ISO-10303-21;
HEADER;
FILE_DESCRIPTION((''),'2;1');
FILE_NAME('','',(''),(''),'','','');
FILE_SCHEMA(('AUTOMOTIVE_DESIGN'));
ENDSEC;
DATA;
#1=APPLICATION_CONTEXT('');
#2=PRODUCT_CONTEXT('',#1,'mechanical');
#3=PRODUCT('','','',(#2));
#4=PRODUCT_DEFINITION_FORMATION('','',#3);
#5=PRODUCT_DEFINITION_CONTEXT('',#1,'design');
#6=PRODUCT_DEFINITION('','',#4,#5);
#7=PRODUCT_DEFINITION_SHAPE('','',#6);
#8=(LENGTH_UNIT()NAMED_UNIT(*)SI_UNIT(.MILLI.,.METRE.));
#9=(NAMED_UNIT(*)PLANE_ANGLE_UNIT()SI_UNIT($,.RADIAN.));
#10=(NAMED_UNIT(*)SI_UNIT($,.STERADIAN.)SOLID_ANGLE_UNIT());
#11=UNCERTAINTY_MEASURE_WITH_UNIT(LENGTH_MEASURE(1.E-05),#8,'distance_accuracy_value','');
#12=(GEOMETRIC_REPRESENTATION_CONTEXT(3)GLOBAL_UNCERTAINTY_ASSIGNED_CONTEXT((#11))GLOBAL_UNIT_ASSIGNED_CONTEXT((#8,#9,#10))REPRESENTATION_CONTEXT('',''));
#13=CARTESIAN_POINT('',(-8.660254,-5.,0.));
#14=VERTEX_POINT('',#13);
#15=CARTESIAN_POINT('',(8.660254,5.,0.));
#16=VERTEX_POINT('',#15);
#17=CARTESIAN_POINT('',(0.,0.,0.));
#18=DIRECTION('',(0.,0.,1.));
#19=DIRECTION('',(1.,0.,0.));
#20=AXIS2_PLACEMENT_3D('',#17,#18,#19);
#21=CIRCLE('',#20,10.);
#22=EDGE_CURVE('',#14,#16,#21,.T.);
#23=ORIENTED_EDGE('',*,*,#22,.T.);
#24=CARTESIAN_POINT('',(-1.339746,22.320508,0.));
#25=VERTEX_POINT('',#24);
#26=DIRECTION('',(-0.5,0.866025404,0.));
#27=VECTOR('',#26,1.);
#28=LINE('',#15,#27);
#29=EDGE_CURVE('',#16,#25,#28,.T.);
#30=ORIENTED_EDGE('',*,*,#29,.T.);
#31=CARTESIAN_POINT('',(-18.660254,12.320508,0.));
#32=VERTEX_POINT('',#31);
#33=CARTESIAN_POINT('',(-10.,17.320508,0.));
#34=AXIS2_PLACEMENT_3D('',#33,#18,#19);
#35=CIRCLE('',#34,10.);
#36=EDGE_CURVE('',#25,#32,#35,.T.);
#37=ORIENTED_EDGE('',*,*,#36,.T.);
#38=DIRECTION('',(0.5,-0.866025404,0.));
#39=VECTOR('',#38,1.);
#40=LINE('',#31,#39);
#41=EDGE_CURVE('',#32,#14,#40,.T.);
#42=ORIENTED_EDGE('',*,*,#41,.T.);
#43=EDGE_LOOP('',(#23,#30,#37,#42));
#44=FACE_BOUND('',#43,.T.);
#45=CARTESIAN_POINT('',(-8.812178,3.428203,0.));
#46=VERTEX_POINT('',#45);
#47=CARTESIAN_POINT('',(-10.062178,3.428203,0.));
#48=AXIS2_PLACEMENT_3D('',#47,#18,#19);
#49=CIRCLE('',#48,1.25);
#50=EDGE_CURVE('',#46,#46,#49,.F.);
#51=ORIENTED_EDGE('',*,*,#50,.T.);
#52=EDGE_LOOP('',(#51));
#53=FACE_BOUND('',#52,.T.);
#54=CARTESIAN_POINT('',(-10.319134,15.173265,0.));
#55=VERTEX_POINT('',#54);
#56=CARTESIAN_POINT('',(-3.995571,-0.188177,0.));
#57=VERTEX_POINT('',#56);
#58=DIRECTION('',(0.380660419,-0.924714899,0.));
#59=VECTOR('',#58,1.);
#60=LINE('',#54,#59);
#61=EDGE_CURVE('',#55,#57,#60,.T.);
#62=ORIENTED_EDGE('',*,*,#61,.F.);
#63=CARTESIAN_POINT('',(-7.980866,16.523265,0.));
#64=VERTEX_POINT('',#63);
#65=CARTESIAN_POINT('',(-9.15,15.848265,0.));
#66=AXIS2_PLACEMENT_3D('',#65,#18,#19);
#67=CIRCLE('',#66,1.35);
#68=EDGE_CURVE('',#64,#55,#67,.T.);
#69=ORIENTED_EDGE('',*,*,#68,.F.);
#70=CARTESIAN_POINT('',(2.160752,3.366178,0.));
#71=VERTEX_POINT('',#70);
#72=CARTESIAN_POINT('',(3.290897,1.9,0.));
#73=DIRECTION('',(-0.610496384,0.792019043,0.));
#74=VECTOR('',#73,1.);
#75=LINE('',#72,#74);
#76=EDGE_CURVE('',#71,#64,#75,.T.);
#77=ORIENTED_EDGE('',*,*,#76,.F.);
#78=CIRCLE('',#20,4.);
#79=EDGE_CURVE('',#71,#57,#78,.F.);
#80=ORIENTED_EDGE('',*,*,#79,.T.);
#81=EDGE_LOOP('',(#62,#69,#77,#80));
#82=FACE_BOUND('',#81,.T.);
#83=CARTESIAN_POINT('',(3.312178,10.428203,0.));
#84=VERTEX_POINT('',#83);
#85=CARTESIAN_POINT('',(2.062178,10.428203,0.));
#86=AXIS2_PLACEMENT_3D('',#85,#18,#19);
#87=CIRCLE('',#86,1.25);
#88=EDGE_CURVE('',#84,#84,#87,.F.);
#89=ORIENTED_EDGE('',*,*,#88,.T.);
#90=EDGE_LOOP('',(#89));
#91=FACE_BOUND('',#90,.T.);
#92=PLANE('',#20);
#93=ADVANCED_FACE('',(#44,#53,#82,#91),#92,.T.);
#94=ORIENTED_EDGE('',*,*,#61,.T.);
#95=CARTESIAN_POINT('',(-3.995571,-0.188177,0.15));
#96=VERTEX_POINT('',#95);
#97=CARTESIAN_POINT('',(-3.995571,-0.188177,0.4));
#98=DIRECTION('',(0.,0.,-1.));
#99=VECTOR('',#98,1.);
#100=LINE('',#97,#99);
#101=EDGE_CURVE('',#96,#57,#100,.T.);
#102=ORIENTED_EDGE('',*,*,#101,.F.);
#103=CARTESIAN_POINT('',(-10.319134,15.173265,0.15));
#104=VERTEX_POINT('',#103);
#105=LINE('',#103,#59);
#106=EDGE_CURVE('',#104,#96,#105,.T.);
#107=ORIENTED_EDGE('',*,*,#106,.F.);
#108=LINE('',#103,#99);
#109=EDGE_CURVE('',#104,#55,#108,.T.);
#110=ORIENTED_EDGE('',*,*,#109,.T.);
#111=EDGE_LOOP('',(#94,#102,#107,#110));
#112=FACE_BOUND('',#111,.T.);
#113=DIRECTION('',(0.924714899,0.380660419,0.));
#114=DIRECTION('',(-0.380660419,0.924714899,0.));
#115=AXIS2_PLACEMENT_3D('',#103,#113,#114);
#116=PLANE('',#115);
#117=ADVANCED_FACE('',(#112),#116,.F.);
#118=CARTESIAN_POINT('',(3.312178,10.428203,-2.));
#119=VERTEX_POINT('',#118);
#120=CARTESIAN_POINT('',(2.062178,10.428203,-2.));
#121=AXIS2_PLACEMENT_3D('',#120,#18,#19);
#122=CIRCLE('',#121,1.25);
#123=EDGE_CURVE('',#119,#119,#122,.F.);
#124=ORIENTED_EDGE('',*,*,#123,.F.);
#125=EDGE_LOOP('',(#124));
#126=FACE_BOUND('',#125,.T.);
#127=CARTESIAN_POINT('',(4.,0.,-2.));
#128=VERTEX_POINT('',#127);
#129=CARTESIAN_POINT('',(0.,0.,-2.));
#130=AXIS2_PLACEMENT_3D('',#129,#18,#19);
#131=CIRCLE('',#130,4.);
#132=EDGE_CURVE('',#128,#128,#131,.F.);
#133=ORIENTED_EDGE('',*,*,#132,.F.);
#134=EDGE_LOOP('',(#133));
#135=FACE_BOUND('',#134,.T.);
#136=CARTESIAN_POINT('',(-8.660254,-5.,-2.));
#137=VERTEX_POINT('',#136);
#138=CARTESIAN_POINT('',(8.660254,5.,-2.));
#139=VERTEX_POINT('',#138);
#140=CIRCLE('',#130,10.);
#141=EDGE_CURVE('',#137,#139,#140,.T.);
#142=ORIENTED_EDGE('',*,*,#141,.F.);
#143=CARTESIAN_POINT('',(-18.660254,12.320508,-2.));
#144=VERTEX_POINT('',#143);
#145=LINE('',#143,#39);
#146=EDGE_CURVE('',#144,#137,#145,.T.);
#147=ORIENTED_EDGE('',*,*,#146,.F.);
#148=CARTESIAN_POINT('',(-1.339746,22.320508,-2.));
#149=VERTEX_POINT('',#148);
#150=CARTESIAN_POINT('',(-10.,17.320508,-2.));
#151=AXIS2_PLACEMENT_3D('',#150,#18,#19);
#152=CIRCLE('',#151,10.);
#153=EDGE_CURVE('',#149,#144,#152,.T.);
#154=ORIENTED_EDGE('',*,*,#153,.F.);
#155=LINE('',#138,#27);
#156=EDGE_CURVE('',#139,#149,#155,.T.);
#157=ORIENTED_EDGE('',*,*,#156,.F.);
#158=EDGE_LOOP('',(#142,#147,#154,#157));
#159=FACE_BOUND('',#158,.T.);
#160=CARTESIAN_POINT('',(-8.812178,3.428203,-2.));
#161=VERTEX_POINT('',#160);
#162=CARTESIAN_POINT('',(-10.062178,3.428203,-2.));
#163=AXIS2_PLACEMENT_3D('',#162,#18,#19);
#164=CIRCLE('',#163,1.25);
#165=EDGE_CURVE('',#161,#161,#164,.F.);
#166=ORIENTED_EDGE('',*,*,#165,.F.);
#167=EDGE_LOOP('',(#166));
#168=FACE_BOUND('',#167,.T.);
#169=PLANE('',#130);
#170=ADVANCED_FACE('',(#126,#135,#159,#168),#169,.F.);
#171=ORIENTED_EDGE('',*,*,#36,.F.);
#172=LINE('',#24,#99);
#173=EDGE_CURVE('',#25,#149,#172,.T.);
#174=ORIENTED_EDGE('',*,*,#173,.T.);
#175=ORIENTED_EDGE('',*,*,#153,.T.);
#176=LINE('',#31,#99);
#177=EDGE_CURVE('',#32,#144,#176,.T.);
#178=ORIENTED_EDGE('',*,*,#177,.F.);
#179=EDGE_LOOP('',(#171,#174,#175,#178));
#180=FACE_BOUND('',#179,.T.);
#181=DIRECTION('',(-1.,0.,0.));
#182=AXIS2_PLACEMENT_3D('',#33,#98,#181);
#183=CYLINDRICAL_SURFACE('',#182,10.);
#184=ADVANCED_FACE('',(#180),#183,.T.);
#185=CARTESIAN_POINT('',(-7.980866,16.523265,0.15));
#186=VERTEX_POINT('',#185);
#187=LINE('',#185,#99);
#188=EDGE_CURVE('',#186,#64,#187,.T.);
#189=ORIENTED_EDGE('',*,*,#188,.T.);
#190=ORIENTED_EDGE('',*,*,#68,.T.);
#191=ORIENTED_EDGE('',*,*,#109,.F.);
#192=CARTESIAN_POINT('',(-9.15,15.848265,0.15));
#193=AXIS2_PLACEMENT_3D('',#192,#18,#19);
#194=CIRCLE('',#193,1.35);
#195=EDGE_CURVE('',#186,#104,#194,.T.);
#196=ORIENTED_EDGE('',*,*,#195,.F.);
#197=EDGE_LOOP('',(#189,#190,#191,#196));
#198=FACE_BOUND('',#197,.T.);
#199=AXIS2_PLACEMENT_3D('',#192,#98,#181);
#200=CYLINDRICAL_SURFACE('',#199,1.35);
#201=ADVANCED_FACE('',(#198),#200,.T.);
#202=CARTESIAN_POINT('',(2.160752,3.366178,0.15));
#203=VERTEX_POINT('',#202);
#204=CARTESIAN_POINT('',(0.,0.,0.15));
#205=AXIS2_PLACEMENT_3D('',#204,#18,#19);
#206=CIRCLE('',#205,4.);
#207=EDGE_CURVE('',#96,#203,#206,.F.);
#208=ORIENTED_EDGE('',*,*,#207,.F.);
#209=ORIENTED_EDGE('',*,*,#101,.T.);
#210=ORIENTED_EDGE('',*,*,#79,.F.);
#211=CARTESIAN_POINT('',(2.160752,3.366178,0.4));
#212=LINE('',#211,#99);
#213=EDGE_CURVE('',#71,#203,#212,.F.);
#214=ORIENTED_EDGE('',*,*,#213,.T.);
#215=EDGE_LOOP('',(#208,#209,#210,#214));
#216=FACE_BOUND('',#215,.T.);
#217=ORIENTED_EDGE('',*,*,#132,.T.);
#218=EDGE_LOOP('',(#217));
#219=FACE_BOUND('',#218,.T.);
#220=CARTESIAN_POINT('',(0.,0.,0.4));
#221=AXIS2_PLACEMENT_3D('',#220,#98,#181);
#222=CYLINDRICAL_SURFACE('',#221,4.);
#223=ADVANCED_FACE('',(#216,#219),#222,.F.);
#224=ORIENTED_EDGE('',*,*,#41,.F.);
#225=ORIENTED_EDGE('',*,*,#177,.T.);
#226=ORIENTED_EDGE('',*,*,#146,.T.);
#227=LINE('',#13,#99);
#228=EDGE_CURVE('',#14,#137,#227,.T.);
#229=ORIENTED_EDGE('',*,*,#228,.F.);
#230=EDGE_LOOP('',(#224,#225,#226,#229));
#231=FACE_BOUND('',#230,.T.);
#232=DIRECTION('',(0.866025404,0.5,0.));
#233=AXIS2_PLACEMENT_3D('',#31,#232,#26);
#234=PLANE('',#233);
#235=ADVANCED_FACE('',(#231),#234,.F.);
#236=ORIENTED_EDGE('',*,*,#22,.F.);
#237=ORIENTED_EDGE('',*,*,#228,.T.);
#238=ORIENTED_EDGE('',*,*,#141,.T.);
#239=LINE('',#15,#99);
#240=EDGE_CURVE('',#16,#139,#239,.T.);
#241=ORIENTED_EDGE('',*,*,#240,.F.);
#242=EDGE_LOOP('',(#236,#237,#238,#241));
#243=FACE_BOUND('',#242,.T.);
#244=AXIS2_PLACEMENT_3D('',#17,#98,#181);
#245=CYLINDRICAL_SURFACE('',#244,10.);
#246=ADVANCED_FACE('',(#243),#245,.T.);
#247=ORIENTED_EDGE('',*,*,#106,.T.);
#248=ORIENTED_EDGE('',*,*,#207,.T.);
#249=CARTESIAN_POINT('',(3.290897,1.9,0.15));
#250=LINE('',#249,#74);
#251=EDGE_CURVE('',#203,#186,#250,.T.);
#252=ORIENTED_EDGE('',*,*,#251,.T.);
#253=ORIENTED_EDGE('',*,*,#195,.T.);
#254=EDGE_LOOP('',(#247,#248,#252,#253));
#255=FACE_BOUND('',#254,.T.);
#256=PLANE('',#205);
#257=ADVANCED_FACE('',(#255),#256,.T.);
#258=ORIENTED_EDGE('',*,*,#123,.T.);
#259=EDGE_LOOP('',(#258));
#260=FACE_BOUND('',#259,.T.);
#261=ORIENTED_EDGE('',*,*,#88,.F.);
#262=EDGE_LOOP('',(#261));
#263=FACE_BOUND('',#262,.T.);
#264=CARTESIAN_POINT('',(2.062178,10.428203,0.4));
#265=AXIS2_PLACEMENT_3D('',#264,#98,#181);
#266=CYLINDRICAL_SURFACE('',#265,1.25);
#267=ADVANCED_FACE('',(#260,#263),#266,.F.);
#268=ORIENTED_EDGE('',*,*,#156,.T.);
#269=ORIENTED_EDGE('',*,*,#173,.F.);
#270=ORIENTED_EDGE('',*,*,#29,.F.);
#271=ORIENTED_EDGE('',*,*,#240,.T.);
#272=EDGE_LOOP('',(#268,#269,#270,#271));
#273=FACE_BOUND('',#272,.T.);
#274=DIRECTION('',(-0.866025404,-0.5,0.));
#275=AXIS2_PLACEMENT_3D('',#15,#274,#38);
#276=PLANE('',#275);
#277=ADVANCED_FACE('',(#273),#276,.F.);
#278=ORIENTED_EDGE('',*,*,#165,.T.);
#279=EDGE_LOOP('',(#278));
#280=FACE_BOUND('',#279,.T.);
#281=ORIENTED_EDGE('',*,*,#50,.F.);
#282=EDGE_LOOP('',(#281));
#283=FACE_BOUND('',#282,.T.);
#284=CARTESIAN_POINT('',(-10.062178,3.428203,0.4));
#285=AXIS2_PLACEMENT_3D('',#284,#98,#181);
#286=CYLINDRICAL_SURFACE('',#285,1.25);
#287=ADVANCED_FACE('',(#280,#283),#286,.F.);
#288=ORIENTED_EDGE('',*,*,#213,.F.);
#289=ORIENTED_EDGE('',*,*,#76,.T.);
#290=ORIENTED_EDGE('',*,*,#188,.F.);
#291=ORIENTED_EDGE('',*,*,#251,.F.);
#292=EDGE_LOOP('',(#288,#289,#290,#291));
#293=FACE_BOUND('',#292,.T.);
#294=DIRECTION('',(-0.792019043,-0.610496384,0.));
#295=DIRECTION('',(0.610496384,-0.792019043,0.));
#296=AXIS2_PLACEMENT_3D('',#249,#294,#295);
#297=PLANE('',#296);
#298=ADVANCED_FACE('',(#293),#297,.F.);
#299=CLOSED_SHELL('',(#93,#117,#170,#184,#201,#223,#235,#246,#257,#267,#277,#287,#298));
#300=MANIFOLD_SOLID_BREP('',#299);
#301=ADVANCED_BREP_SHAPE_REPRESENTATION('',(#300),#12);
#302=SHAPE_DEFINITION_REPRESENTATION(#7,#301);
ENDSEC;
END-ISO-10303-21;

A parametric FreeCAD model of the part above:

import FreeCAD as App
import Part
import Sketcher
Q = App.Units.Quantity

doc = App.newDocument("Part")
body = doc.addObject("PartDesign::Body", "Body")

# Sketch on XY plane
sketch1 = body.newObject("Sketcher::SketchObject", "Sketch")
sketch1.AttachmentSupport = (doc.getObject("XY_Plane"), [""])
sketch1.MapMode = "FlatFace"
sketch1.AttachmentOffset = App.Placement(App.Vector(0, 0, -2), App.Rotation())
sketch1.addGeometry([
    Part.LineSegment(App.Vector(8.660254, 5, 0), App.Vector(-1.339746, 22.320508, 0)),
    Part.LineSegment(App.Vector(-1.339746, 22.320508, 0), App.Vector(-18.660254, 12.320508, 0)),
    Part.LineSegment(App.Vector(-18.660254, 12.320508, 0), App.Vector(-8.660254, -5, 0)),
    Part.LineSegment(App.Vector(-8.660254, -5, 0), App.Vector(8.660254, 5, 0)),
], False)
sketch1.addConstraint([
    Sketcher.Constraint("Coincident", 0, 2, 1, 1),
    Sketcher.Constraint("Coincident", 1, 2, 2, 1),
    Sketcher.Constraint("Coincident", 2, 2, 3, 1),
    Sketcher.Constraint("Coincident", 3, 2, 0, 1),
    Sketcher.Constraint("Symmetric", 2, 2, 3, 2, -1, 1),
    Sketcher.Constraint("Perpendicular", 0, 1),
    Sketcher.Constraint("Perpendicular", 1, 2),
    Sketcher.Constraint("Perpendicular", 2, 3),
    Sketcher.Constraint("Equal", 0, 1),
    Sketcher.Constraint("Angle", 0, Q("120 deg")),
    Sketcher.Constraint("Distance", 0, Q("20 mm")),
])
pad1 = body.newObject("PartDesign::Pad", "Pad")
pad1.Profile = sketch1
pad1.Length = 2

# Sketch on XY plane
sketch2 = body.newObject("Sketcher::SketchObject", "Sketch001")
sketch2.AttachmentSupport = (doc.getObject("XY_Plane"), [""])
sketch2.MapMode = "FlatFace"
sketch2.AttachmentOffset = App.Placement(App.Vector(0, 0, -2), App.Rotation())
sketch2.addGeometry(Part.Circle(App.Vector(0, 0, 0), App.Vector(0, 0, 1), 10), False)
sketch2.addConstraint([
    Sketcher.Constraint("Coincident", 0, 3, -1, 1),
    Sketcher.Constraint("Diameter", 0, Q("20 mm")),
])
pad2 = body.newObject("PartDesign::Pad", "Pad001")
pad2.Profile = sketch2
pad2.Length = 2

# Sketch on XY plane
sketch3 = body.newObject("Sketcher::SketchObject", "Sketch002")
sketch3.AttachmentSupport = (doc.getObject("XY_Plane"), [""])
sketch3.MapMode = "FlatFace"
sketch3.AttachmentOffset = App.Placement(App.Vector(0, 0, -2), App.Rotation())
sketch3.addGeometry(Part.Circle(App.Vector(-10, 17.320508, 0), App.Vector(0, 0, 1), 10), False)
sketch3.addConstraint([
    Sketcher.Constraint("Diameter", 0, Q("20 mm")),
    Sketcher.Constraint("DistanceX", 0, 3, -1, 1, Q("10 mm")),
    Sketcher.Constraint("DistanceY", -1, 1, 0, 3, Q("17.320508 mm")),
])
pad3 = body.newObject("PartDesign::Pad", "Pad002")
pad3.Profile = sketch3
pad3.Length = 2

# Sketch on XY plane
sketch4 = body.newObject("Sketcher::SketchObject", "Sketch003")
sketch4.AttachmentSupport = (doc.getObject("XY_Plane"), [""])
sketch4.MapMode = "FlatFace"
sketch4.addGeometry([
    Part.LineSegment(App.Vector(3.290897, 1.9, 0), App.Vector(-7.980866, 16.523265, 0)),
    Part.LineSegment(App.Vector(-7.980866, 16.523265, 0), App.Vector(-10.319134, 15.173265, 0)),
    Part.LineSegment(App.Vector(-10.319134, 15.173265, 0), App.Vector(-3.290897, -1.9, 0)),
    Part.LineSegment(App.Vector(-3.290897, -1.9, 0), App.Vector(3.290897, 1.9, 0)),
], False)
sketch4.addConstraint([
    Sketcher.Constraint("Coincident", 0, 2, 1, 1),
    Sketcher.Constraint("Coincident", 1, 2, 2, 1),
    Sketcher.Constraint("Coincident", 2, 2, 3, 1),
    Sketcher.Constraint("Coincident", 3, 2, 0, 1),
    Sketcher.Constraint("Symmetric", 2, 2, 3, 2, -1, 1),
    Sketcher.Constraint("Parallel", 1, 3),
    Sketcher.Constraint("Equal", 0, 2),
    Sketcher.Constraint("Angle", 1, Q("-150 deg")),
    Sketcher.Constraint("Distance", 1, Q("2.7 mm")),
    Sketcher.Constraint("Distance", 3, Q("7.6 mm")),
    Sketcher.Constraint("DistanceX", 0, 2, 2, 2, Q("4.689969 mm")),
])
pad4 = body.newObject("PartDesign::Pad", "Pad003")
pad4.Profile = sketch4
pad4.Length = 0.15

# Sketch on XY plane
sketch5 = body.newObject("Sketcher::SketchObject", "Sketch004")
sketch5.AttachmentSupport = (doc.getObject("XY_Plane"), [""])
sketch5.MapMode = "FlatFace"
sketch5.addGeometry(Part.Circle(App.Vector(0, 0, 0), App.Vector(0, 0, 1), 3.8), False)
sketch5.addConstraint([
    Sketcher.Constraint("Coincident", 0, 3, -1, 1),
    Sketcher.Constraint("Diameter", 0, Q("7.6 mm")),
])
pad5 = body.newObject("PartDesign::Pad", "Pad004")
pad5.Profile = sketch5
pad5.Length = 0.15

# Sketch on XY plane
sketch6 = body.newObject("Sketcher::SketchObject", "Sketch005")
sketch6.AttachmentSupport = (doc.getObject("XY_Plane"), [""])
sketch6.MapMode = "FlatFace"
sketch6.addGeometry(Part.Circle(App.Vector(-9.15, 15.848265, 0), App.Vector(0, 0, 1), 1.35), False)
sketch6.addConstraint([
    Sketcher.Constraint("Diameter", 0, Q("2.7 mm")),
    Sketcher.Constraint("DistanceX", 0, 3, -1, 1, Q("9.15 mm")),
    Sketcher.Constraint("DistanceY", -1, 1, 0, 3, Q("15.848265 mm")),
])
pad6 = body.newObject("PartDesign::Pad", "Pad005")
pad6.Profile = sketch6
pad6.Length = 0.15

# Sketch on XY plane
sketch7 = body.newObject("Sketcher::SketchObject", "Sketch006")
sketch7.AttachmentSupport = (doc.getObject("XY_Plane"), [""])
sketch7.MapMode = "FlatFace"
sketch7.AttachmentOffset = App.Placement(App.Vector(0, 0, -2.1), App.Rotation())
sketch7.addGeometry(Part.Circle(App.Vector(0, 0, 0), App.Vector(0, 0, 1), 4), False)
sketch7.addConstraint([
    Sketcher.Constraint("Coincident", 0, 3, -1, 1),
    Sketcher.Constraint("Diameter", 0, Q("8 mm")),
])
pocket1 = body.newObject("PartDesign::Pocket", "Pocket")
pocket1.Profile = sketch7
pocket1.Length = 2.5
pocket1.Reversed = True

# Sketch on XY plane
sketch8 = body.newObject("Sketcher::SketchObject", "Sketch007")
sketch8.AttachmentSupport = (doc.getObject("XY_Plane"), [""])
sketch8.MapMode = "FlatFace"
sketch8.AttachmentOffset = App.Placement(App.Vector(0, 0, -2.1), App.Rotation())
sketch8.addGeometry([
    Part.Circle(App.Vector(2.062178, 10.428203, 0), App.Vector(0, 0, 1), 1.25),
    Part.Circle(App.Vector(-10.062178, 3.428203, 0), App.Vector(0, 0, 1), 1.25),
], False)
sketch8.addConstraint([
    Sketcher.Constraint("Equal", 0, 1),
    Sketcher.Constraint("Diameter", 0, Q("2.5 mm")),
    Sketcher.Constraint("DistanceY", 1, 3, 0, 3, Q("7 mm")),
    Sketcher.Constraint("DistanceX", -1, 1, 0, 3, Q("2.062178 mm")),
    Sketcher.Constraint("DistanceY", -1, 1, 0, 3, Q("10.428203 mm")),
    Sketcher.Constraint("DistanceX", 1, 3, -1, 1, Q("10.062178 mm")),
])
pocket2 = body.newObject("PartDesign::Pocket", "Pocket001")
pocket2.Profile = sketch8
pocket2.Length = 2.5
pocket2.Reversed = True

doc.recompute()
